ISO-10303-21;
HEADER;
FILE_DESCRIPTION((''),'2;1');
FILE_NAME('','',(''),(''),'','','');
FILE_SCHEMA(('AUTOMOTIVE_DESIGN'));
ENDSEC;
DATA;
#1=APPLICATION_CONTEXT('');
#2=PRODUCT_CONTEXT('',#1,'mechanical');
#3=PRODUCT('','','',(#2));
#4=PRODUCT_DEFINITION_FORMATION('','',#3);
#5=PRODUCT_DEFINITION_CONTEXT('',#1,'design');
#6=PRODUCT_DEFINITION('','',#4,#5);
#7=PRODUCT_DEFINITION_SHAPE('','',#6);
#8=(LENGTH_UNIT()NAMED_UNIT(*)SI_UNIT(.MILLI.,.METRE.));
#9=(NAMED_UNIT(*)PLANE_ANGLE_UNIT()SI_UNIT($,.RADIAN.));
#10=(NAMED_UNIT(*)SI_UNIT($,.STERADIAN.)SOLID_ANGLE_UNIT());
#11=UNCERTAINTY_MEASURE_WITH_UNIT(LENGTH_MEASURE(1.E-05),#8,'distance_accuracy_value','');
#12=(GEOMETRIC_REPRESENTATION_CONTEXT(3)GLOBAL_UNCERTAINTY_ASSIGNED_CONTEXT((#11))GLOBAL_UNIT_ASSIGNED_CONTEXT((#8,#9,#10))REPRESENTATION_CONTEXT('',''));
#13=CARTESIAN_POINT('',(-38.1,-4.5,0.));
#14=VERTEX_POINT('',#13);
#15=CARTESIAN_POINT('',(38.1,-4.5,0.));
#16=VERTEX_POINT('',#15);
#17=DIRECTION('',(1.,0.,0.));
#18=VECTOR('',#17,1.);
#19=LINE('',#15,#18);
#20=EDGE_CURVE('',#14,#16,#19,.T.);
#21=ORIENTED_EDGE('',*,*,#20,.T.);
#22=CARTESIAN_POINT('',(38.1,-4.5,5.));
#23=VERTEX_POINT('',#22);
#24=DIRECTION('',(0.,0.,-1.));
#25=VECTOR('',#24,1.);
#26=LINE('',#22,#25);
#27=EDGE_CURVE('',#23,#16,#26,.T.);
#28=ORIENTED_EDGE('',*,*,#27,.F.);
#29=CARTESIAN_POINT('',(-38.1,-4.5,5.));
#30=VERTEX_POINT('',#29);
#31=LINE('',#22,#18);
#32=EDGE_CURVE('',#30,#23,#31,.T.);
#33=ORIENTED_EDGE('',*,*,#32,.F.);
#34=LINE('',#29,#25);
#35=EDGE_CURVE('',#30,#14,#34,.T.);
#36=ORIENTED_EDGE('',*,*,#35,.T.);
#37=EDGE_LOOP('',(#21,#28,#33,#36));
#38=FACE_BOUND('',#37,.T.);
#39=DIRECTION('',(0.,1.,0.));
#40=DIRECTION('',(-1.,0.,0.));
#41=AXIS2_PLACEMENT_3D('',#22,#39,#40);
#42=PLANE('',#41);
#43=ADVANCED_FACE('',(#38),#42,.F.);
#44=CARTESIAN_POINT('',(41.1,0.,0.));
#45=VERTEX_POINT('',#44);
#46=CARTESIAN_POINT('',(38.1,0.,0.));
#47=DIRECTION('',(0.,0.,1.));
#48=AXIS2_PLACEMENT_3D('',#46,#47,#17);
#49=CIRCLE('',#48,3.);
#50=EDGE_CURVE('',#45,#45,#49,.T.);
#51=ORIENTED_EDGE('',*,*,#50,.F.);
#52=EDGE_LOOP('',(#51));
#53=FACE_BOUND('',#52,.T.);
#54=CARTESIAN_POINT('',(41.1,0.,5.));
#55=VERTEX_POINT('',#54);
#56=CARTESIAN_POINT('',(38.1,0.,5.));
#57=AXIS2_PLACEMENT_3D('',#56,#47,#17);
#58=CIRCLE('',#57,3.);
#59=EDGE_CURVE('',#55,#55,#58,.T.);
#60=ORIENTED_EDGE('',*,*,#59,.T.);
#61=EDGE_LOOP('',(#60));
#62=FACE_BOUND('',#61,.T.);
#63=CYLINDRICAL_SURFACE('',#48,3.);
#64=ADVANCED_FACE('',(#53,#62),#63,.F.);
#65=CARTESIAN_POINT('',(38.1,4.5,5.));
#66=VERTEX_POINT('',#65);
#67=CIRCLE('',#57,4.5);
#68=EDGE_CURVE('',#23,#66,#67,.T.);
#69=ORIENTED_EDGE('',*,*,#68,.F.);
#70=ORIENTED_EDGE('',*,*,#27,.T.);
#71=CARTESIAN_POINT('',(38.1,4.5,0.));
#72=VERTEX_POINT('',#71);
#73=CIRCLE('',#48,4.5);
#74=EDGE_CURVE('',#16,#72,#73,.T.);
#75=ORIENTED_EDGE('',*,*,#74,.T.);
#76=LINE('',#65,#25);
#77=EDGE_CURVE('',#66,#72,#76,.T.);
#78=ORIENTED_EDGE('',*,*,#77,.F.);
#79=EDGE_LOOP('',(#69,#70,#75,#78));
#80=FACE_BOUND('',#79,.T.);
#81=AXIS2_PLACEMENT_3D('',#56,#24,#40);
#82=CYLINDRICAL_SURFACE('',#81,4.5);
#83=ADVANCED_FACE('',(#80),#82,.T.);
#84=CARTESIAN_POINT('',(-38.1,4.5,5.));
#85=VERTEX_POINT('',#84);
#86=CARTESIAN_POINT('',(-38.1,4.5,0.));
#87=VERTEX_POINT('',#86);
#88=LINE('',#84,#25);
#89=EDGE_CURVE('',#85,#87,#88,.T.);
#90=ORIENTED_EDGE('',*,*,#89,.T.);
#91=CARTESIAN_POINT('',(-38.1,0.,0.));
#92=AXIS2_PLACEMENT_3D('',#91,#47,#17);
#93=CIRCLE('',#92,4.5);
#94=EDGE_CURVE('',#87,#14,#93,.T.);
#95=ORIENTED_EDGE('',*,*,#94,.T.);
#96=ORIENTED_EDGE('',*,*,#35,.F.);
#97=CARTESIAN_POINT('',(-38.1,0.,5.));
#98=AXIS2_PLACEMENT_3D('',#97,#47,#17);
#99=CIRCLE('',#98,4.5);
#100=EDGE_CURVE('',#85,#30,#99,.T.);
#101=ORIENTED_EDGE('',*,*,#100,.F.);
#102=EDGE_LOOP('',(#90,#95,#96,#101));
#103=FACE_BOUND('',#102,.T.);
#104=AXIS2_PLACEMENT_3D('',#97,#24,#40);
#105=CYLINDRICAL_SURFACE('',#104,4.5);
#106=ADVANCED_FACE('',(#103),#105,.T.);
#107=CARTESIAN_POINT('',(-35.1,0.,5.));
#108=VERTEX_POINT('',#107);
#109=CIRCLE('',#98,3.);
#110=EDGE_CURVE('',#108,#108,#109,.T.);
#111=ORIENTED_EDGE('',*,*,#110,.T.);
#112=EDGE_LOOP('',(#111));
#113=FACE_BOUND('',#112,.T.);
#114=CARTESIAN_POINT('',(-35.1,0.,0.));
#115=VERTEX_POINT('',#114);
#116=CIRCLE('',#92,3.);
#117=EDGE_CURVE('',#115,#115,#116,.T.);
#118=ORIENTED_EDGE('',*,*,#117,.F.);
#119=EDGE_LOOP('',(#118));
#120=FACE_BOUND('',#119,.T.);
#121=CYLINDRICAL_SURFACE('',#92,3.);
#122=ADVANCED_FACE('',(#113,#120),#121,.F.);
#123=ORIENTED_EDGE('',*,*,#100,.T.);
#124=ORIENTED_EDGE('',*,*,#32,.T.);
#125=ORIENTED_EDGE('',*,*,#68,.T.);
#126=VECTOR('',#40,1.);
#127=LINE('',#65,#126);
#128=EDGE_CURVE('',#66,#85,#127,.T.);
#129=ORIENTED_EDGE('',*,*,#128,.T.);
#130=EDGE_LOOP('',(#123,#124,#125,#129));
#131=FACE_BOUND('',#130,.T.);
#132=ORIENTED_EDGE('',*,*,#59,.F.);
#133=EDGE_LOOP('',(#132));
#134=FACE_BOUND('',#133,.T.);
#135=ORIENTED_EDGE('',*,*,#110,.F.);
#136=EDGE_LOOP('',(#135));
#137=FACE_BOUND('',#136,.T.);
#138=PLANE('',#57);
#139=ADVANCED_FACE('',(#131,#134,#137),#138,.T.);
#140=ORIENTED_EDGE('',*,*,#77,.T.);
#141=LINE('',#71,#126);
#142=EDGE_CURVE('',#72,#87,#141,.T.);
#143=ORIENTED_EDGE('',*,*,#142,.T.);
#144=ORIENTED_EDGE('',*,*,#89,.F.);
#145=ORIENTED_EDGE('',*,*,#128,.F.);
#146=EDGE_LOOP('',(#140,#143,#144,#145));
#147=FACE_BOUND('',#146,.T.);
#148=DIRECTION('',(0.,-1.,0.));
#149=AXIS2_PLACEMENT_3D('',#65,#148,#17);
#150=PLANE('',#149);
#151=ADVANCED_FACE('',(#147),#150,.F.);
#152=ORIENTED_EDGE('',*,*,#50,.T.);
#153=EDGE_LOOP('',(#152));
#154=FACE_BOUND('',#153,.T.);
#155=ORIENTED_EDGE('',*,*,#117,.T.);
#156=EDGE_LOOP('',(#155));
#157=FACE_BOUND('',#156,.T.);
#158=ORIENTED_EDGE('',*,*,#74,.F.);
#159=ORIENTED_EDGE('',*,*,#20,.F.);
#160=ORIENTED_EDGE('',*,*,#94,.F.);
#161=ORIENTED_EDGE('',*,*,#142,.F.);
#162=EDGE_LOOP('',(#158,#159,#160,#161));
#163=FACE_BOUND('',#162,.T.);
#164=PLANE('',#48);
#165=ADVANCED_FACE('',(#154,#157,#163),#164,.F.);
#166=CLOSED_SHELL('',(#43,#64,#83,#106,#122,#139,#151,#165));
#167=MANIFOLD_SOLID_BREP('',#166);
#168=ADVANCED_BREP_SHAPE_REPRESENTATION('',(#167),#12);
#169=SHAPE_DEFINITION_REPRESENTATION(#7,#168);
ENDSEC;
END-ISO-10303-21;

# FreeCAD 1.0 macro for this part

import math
import FreeCAD as App
import Part
import Sketcher

V = App.Vector

doc = App.newDocument("Part")
body = doc.addObject("PartDesign::Body", "Body")

# Sketch on XY plane
sketch1 = body.newObject("Sketcher::SketchObject", "Sketch")
sketch1.AttachmentSupport = (doc.getObject("XY_Plane"), [""])
sketch1.MapMode = "FlatFace"
sketch1.addGeometry(Part.LineSegment(V(-38.1, -4.5, 0), V(38.1, -4.5, 0)), False)
sketch1.addGeometry(Part.ArcOfCircle(Part.Circle(V(38.1, 0, 0), V(0, 0, 1), 4.5), math.radians(-90), math.radians(90)), False)
sketch1.addGeometry(Part.LineSegment(V(38.1, 4.5, 0), V(-38.1, 4.5, 0)), False)
sketch1.addGeometry(Part.ArcOfCircle(Part.Circle(V(-38.1, 0, 0), V(0, 0, 1), 4.5), math.radians(90), math.radians(270)), False)
sketch1.addConstraint(Sketcher.Constraint("Tangent", 0, 2, 1, 1))
sketch1.addConstraint(Sketcher.Constraint("Tangent", 1, 2, 2, 1))
sketch1.addConstraint(Sketcher.Constraint("Tangent", 2, 2, 3, 1))
sketch1.addConstraint(Sketcher.Constraint("Tangent", 3, 2, 0, 1))
sketch1.addConstraint(Sketcher.Constraint("Horizontal", 0))
sketch1.addConstraint(Sketcher.Constraint("Horizontal", 2))
sketch1.addConstraint(Sketcher.Constraint("Symmetric", 1, 3, 3, 3, -1, 1))
sketch1.addConstraint(Sketcher.Constraint("Radius", 1, 4.5))
sketch1.addConstraint(Sketcher.Constraint("DistanceX", 0, 1, 0, 2, 76.2))
pad1 = body.newObject("PartDesign::Pad", "Pad")
pad1.Profile = sketch1
pad1.Length = 5

# Sketch on XY plane
sketch2 = body.newObject("Sketcher::SketchObject", "Sketch001")
sketch2.AttachmentSupport = (doc.getObject("XY_Plane"), [""])
sketch2.MapMode = "FlatFace"
sketch2.AttachmentOffset = App.Placement(V(0, 0, 5), App.Rotation())
sketch2.addGeometry(Part.Circle(V(-38.1, 0, 0), V(0, 0, 1), 3), False)
sketch2.addGeometry(Part.Circle(V(38.1, 0, 0), V(0, 0, 1), 3), False)
sketch2.addConstraint(Sketcher.Constraint("Equal", 0, 1))
sketch2.addConstraint(Sketcher.Constraint("Symmetric", 0, 3, 1, 3, -1, 1))
sketch2.addConstraint(Sketcher.Constraint("PointOnObject", 0, 3, -1))
sketch2.addConstraint(Sketcher.Constraint("Diameter", 0, 6.0))
sketch2.addConstraint(Sketcher.Constraint("DistanceX", 0, 3, -1, 1, 38.1))
pocket1 = body.newObject("PartDesign::Pocket", "Pocket")
pocket1.Profile = sketch2
pocket1.Type = "ThroughAll"

doc.recompute()
